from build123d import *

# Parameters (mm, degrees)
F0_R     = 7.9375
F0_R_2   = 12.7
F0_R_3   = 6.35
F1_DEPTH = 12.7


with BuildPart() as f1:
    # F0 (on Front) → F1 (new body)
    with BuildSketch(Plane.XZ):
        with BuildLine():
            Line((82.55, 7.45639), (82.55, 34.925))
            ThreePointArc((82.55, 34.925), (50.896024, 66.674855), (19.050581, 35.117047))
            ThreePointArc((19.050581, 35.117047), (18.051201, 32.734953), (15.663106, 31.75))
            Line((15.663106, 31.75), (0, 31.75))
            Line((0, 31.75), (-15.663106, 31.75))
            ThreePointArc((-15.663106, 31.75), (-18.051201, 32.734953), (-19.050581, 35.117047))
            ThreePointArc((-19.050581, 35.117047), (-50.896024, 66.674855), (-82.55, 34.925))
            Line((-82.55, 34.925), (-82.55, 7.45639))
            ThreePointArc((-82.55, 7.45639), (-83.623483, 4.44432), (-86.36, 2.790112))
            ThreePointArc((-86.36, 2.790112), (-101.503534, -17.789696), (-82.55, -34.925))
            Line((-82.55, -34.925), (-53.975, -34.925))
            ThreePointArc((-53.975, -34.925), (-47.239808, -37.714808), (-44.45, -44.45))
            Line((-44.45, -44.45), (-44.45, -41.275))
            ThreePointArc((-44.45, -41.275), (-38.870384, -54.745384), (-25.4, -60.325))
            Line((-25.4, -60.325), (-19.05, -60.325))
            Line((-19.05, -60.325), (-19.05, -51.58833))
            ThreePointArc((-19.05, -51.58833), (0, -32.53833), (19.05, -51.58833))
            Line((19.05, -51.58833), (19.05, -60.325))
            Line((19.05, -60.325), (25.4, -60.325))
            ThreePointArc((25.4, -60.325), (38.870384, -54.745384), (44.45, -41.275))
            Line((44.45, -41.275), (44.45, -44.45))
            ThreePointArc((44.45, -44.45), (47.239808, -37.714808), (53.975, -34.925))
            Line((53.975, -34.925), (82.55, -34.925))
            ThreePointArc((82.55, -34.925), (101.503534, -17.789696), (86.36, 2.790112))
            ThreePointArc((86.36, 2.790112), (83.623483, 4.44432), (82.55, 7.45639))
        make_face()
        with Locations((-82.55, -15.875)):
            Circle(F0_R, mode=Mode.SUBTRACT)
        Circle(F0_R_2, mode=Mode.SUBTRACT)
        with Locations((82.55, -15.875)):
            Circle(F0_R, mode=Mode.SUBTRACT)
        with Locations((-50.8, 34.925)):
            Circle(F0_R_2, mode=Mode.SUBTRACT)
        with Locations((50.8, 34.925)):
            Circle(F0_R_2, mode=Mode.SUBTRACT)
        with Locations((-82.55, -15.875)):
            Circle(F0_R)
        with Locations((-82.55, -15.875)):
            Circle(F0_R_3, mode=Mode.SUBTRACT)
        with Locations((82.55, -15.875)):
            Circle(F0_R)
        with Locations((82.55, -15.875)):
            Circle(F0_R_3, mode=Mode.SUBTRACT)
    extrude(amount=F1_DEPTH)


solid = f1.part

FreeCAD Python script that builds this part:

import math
import FreeCAD as App
import Part
import Sketcher

V = App.Vector
Q = App.Units.Quantity

doc = App.newDocument("Part")
body = doc.addObject("PartDesign::Body", "Body")

# Sketch on XZ plane
sketch1 = doc.addObject("Sketcher::SketchObject", "Sketch")
body.addObject(sketch1)
sketch1.AttachmentSupport = (doc.XZ_Plane, [""])
sketch1.MapMode = "FlatFace"
sketch1.addGeometry([
    Part.LineSegment(V(82.5, 7.5, 0), V(82.5, 34.9, 0)),  # 0
    Part.ArcOfCircle(Part.Circle(V(50.8, 34.9, 0), V(0, 0, 1), 31.7), math.radians(0), math.radians(180)),  # 1
    Part.ArcOfCircle(Part.Circle(V(15.7, 35.1, 0), V(0, 0, 1), 3.4), math.radians(-90), math.radians(0)),  # 2
    Part.LineSegment(V(15.7, 31.8, 0), V(-15.7, 31.8, 0)),  # 3
    Part.ArcOfCircle(Part.Circle(V(-15.7, 35.1, 0), V(0, 0, 1), 3.4), math.radians(-180), math.radians(-90)),  # 4
    Part.ArcOfCircle(Part.Circle(V(-50.8, 34.9, 0), V(0, 0, 1), 31.7), math.radians(0), math.radians(180)),  # 5
    Part.LineSegment(V(-82.5, 34.9, 0), V(-82.5, 7.5, 0)),  # 6
    Part.ArcOfCircle(Part.Circle(V(-87.3, 7.5, 0), V(0, 0, 1), 4.8), math.radians(-78), math.radians(0)),  # 7
    Part.ArcOfCircle(Part.Circle(V(-82.6, -15.9, 0), V(0, 0, 1), 19.1), math.radians(102), math.radians(270)),  # 8
    Part.LineSegment(V(-82.5, -34.9, 0), V(-54, -34.9, 0)),  # 9
    Part.ArcOfCircle(Part.Circle(V(-54, -44.5, 0), V(0, 0, 1), 9.5), math.radians(0), math.radians(90)),  # 10
    Part.LineSegment(V(-44.5, -44.5, 0), V(-44.5, -41.3, 0)),  # 11
    Part.ArcOfCircle(Part.Circle(V(-25.4, -41.3, 0), V(0, 0, 1), 19.1), math.radians(-180), math.radians(-90)),  # 12
    Part.LineSegment(V(-25.4, -60.3, 0), V(-19.1, -60.3, 0)),  # 13
    Part.LineSegment(V(-19.1, -60.3, 0), V(-19.1, -51.6, 0)),  # 14
    Part.ArcOfCircle(Part.Circle(V(0, -51.6, 0), V(0, 0, 1), 19.1), math.radians(0), math.radians(180)),  # 15
    Part.LineSegment(V(19.1, -51.6, 0), V(19.1, -60.3, 0)),  # 16
    Part.LineSegment(V(19.1, -60.3, 0), V(25.4, -60.3, 0)),  # 17
    Part.ArcOfCircle(Part.Circle(V(25.4, -41.3, 0), V(0, 0, 1), 19.1), math.radians(-90), math.radians(0)),  # 18
    Part.LineSegment(V(44.5, -41.3, 0), V(44.5, -44.5, 0)),  # 19
    Part.ArcOfCircle(Part.Circle(V(54, -44.5, 0), V(0, 0, 1), 9.5), math.radians(90), math.radians(180)),  # 20
    Part.LineSegment(V(54, -34.9, 0), V(82.5, -34.9, 0)),  # 21
    Part.ArcOfCircle(Part.Circle(V(82.6, -15.9, 0), V(0, 0, 1), 19.1), math.radians(-90), math.radians(78)),  # 22
    Part.ArcOfCircle(Part.Circle(V(87.3, 7.5, 0), V(0, 0, 1), 4.8), math.radians(180), math.radians(258)),  # 23
    Part.Circle(V(-82.5, -15.9, 0), V(0, 0, 1), 6.3),  # 24
    Part.Circle(V(82.5, -15.9, 0), V(0, 0, 1), 6.3),  # 25
    Part.Circle(V(0, 0, 0), V(0, 0, 1), 12.7),  # 26
    Part.Circle(V(-50.8, 34.9, 0), V(0, 0, 1), 12.7),  # 27
    Part.Circle(V(50.8, 34.9, 0), V(0, 0, 1), 12.7),  # 28
], False)
sketch1.addConstraint([
    Sketcher.Constraint("Tangent", 0, 2, 1, 1),
    Sketcher.Constraint("Tangent", 1, 2, 2, 2),
    Sketcher.Constraint("Tangent", 2, 1, 3, 1),
    Sketcher.Constraint("Tangent", 3, 2, 4, 2),
    Sketcher.Constraint("Tangent", 4, 1, 5, 1),
    Sketcher.Constraint("Tangent", 5, 2, 6, 1),
    Sketcher.Constraint("Tangent", 6, 2, 7, 2),
    Sketcher.Constraint("Tangent", 7, 1, 8, 1),
    Sketcher.Constraint("Tangent", 8, 2, 9, 1),
    Sketcher.Constraint("Tangent", 9, 2, 10, 2),
    Sketcher.Constraint("Tangent", 10, 1, 11, 1),
    Sketcher.Constraint("Tangent", 11, 2, 12, 1),
    Sketcher.Constraint("Tangent", 12, 2, 13, 1),
    Sketcher.Constraint("Coincident", 13, 2, 14, 1),
    Sketcher.Constraint("Tangent", 14, 2, 15, 2),
    Sketcher.Constraint("Tangent", 15, 1, 16, 1),
    Sketcher.Constraint("Coincident", 16, 2, 17, 1),
    Sketcher.Constraint("Tangent", 17, 2, 18, 1),
    Sketcher.Constraint("Tangent", 18, 2, 19, 1),
    Sketcher.Constraint("Tangent", 19, 2, 20, 2),
    Sketcher.Constraint("Tangent", 20, 1, 21, 1),
    Sketcher.Constraint("Tangent", 21, 2, 22, 1),
    Sketcher.Constraint("Tangent", 22, 2, 23, 2),
    Sketcher.Constraint("Tangent", 23, 1, 0, 1),
    Sketcher.Constraint("Vertical", 0),
    Sketcher.Constraint("Horizontal", 3),
    Sketcher.Constraint("Vertical", 6),
    Sketcher.Constraint("Horizontal", 9),
    Sketcher.Constraint("Vertical", 11),
    Sketcher.Constraint("Horizontal", 13),
    Sketcher.Constraint("Vertical", 14),
    Sketcher.Constraint("Vertical", 16),
    Sketcher.Constraint("Horizontal", 17),
    Sketcher.Constraint("Vertical", 19),
    Sketcher.Constraint("Horizontal", 21),
    Sketcher.Constraint("Coincident", 26, 3, -1, 1),
    Sketcher.Constraint("Coincident", 24, 3, 8, 3),
    Sketcher.Constraint("Coincident", 25, 3, 22, 3),
    Sketcher.Constraint("Coincident", 27, 3, 5, 3),
    Sketcher.Constraint("Coincident", 28, 3, 1, 3),
    Sketcher.Constraint("Equal", 2, 4),
    Sketcher.Constraint("Equal", 1, 5),
    Sketcher.Constraint("Equal", 8, 12),
    Sketcher.Constraint("Equal", 12, 15),
    Sketcher.Constraint("Equal", 15, 18),
    Sketcher.Constraint("Equal", 10, 20),
    Sketcher.Constraint("Equal", 18, 22),
    Sketcher.Constraint("Equal", 7, 23),
    Sketcher.Constraint("Equal", 24, 25),
    Sketcher.Constraint("Equal", 26, 27),
    Sketcher.Constraint("Equal", 27, 28),
    Sketcher.Constraint("Symmetric", 0, 2, 8, 2, -1, 1),
    Sketcher.Constraint("Symmetric", 5, 2, 21, 2, -1, 1),
    Sketcher.Constraint("Symmetric", 1, 3, 5, 3, -2),
    Sketcher.Constraint("Symmetric", 12, 3, 18, 3, -2),
    Sketcher.Constraint("PointOnObject", 15, 3, -2),
    Sketcher.Constraint("Diameter", 26, Q("1 in")),
    Sketcher.Constraint("Diameter", 24, Q("0.5 in")),
    Sketcher.Constraint("Radius", 1, Q("1.25 in")),
    Sketcher.Constraint("Radius", 8, Q("0.75 in")),
    Sketcher.Constraint("DistanceX", -1, 1, 1, 3, Q("2 in")),
    Sketcher.Constraint("DistanceX", 12, 3, -1, 1, Q("1 in")),
    Sketcher.Constraint("Radius", 7, Q("0.1874999 in")),
    Sketcher.Constraint("Radius", 10, Q("0.375 in")),
    Sketcher.Constraint("DistanceY", 8, 3, 5, 3, Q("2 in")),
    Sketcher.Constraint("DistanceY", 12, 3, 8, 3, Q("1 in")),
    Sketcher.Constraint("DistanceY", -1, 1, 2, 1, Q("1.25 in")),
    Sketcher.Constraint("Radius", 2, Q("3.387537 mm")),
    Sketcher.Constraint("DistanceY", 14, 1, 14, 2, Q("8.73667 mm")),
])
pad1 = doc.addObject("PartDesign::Pad", "Pad")
body.addObject(pad1)
pad1.Profile = sketch1
pad1.Length = Q("0.5 in")

doc.recompute()
